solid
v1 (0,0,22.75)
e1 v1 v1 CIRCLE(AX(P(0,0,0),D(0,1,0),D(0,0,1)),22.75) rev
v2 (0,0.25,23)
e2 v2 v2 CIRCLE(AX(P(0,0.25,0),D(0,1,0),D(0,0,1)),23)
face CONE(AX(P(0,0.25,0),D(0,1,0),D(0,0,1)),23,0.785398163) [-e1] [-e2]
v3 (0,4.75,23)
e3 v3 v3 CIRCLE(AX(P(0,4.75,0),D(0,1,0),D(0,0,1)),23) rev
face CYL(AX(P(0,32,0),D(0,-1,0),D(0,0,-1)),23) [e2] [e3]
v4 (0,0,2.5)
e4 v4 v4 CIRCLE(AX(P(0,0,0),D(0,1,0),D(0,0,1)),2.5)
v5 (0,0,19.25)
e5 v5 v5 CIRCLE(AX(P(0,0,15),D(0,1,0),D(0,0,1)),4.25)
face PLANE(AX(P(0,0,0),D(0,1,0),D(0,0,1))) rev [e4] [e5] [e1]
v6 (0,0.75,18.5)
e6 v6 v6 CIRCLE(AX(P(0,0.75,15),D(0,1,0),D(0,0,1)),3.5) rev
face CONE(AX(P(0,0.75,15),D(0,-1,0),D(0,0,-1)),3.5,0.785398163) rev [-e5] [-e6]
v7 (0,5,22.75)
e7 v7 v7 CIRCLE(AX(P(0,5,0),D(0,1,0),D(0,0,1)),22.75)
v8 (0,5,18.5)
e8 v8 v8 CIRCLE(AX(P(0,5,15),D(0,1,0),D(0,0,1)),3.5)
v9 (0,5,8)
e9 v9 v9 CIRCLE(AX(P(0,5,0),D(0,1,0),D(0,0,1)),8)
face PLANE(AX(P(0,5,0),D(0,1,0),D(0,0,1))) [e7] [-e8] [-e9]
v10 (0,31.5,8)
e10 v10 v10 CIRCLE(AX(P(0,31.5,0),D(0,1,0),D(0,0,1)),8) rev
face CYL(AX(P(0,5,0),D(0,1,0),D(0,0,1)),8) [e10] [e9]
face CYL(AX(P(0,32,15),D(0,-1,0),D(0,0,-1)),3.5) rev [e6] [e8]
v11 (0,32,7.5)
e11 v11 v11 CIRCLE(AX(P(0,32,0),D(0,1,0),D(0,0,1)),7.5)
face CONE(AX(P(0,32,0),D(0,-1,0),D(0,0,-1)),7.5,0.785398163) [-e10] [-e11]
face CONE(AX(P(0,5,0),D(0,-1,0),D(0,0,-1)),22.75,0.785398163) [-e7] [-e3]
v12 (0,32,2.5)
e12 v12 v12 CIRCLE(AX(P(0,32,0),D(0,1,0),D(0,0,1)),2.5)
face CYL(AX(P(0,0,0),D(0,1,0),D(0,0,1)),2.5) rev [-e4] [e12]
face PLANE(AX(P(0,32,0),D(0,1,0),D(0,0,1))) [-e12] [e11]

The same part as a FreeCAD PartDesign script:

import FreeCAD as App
import Part
import Sketcher
Q = App.Units.Quantity


def edges_at(feature, points):
    """Names of the edges that pass closest to the given points."""
    edges = feature.Shape.Edges
    near = lambda p: min(range(len(edges)), key=lambda i: edges[i].distToShape(Part.Vertex(*p))[0])
    return sorted({f"Edge{near(p) + 1}" for p in points})


def add_polygon(sketch, points):
    """Adds a closed chain of lines whose ends are joined by coincident constraints."""
    first, n = sketch.GeometryCount, len(points)
    for a, b in zip(points, points[1:] + points[:1]):
        sketch.addGeometry(Part.LineSegment(App.Vector(*a, 0), App.Vector(*b, 0)), False)
    for i in range(n):
        sketch.addConstraint(Sketcher.Constraint("Coincident", first + i, 2, first + (i + 1) % n, 1))

doc = App.newDocument("Part")
params = doc.addObject("Spreadsheet::Sheet", "Params")
for row, (alias, value) in enumerate([
    ("sketch1_diameter", "46 mm"),
    ("pad1_length", "32 mm"),
    ("sketch2_diameter", "16 mm"),
    ("sketch2_width", "62.5 mm"),
    ("pocket1_length", "27 mm"),
    ("sketch3_diameter", "5 mm"),
    ("chamfer_size", "0.5 mm"),
    ("chamfer2_size", "0.25 mm"),
    ("sketch4_diameter", "7 mm"),
    ("chamfer3_size", "0.75 mm"),
], start=1):
    params.set(f"A{row}", alias)
    params.set(f"B{row}", "=" + value)
    params.setAlias(f"B{row}", alias)

body = doc.addObject("PartDesign::Body", "Body")

# Sketch on XZ plane
sketch1 = body.newObject("Sketcher::SketchObject", "Sketch")
sketch1.AttachmentSupport = (doc.getObject("XZ_Plane"), [""])
sketch1.MapMode = "FlatFace"
sketch1.addGeometry(Part.Circle(App.Vector(0, 0, 0), App.Vector(0, 0, 1), 23), False)
sketch1.addConstraint(Sketcher.Constraint("Coincident", 0, 3, -1, 1))
sketch1.addConstraint(Sketcher.Constraint("Diameter", 0, Q("46 mm")))
sketch1.setExpression("Constraints[1]", "Params.sketch1_diameter")
pad1 = body.newObject("PartDesign::Pad", "Pad")
pad1.Profile = sketch1
pad1.setExpression("Length", "Params.pad1_length")
pad1.Reversed = True

# Sketch on XZ plane
sketch2 = body.newObject("Sketcher::SketchObject", "Sketch001")
sketch2.AttachmentSupport = (doc.getObject("XZ_Plane"), [""])
sketch2.MapMode = "FlatFace"
sketch2.AttachmentOffset = App.Placement(App.Vector(0, 0, -32), App.Rotation())
add_polygon(sketch2, [(-31.25, -31.25), (-31.25, 31.25), (31.25, 31.25), (31.25, -31.25)])  # lines 0-3
sketch2.addGeometry(Part.Circle(App.Vector(0, 0, 0), App.Vector(0, 0, 1), 8), False)  # 4
sketch2.addConstraint(Sketcher.Constraint("Vertical", 0))
sketch2.addConstraint(Sketcher.Constraint("Horizontal", 1))
sketch2.addConstraint(Sketcher.Constraint("Vertical", 2))
sketch2.addConstraint(Sketcher.Constraint("Horizontal", 3))
sketch2.addConstraint(Sketcher.Constraint("Coincident", 4, 3, -1, 1))
sketch2.addConstraint(Sketcher.Constraint("Symmetric", 0, 2, 2, 2, -1, 1))
sketch2.addConstraint(Sketcher.Constraint("Equal", 3, 0))
sketch2.addConstraint(Sketcher.Constraint("Diameter", 4, Q("16 mm")))
sketch2.addConstraint(Sketcher.Constraint("DistanceX", 1, 1, 1, 2, Q("62.5 mm")))
sketch2.setExpression("Constraints[11]", "Params.sketch2_diameter")
sketch2.setExpression("Constraints[12]", "Params.sketch2_width")
pocket1 = body.newObject("PartDesign::Pocket", "Pocket")
pocket1.Profile = sketch2
pocket1.setExpression("Length", "Params.pocket1_length")
pocket1.Reversed = True

# Sketch on XZ plane
sketch3 = body.newObject("Sketcher::SketchObject", "Sketch002")
sketch3.AttachmentSupport = (doc.getObject("XZ_Plane"), [""])
sketch3.MapMode = "FlatFace"
sketch3.AttachmentOffset = App.Placement(App.Vector(0, 0, -32), App.Rotation())
sketch3.addGeometry(Part.Circle(App.Vector(0, 0, 0), App.Vector(0, 0, 1), 2.5), False)
sketch3.addConstraint(Sketcher.Constraint("Coincident", 0, 3, -1, 1))
sketch3.addConstraint(Sketcher.Constraint("Diameter", 0, Q("5 mm")))
sketch3.setExpression("Constraints[1]", "Params.sketch3_diameter")
pocket2 = body.newObject("PartDesign::Pocket", "Pocket001")
pocket2.Profile = sketch3
pocket2.Type = "ThroughAll"
pocket2.Reversed = True
doc.recompute()

chamfer = body.newObject("PartDesign::Chamfer", "Chamfer")
chamfer.Base = (pocket2, edges_at(pocket2, [(0, 32, -8)]))
chamfer.setExpression("Size", "Params.chamfer_size")
doc.recompute()

chamfer2 = body.newObject("PartDesign::Chamfer", "Chamfer001")
chamfer2.Base = (chamfer, edges_at(chamfer, [(0, 0, -23), (0, 5, -23)]))
chamfer2.setExpression("Size", "Params.chamfer2_size")

# Sketch on XZ plane
sketch4 = body.newObject("Sketcher::SketchObject", "Sketch003")
sketch4.AttachmentSupport = (doc.getObject("XZ_Plane"), [""])
sketch4.MapMode = "FlatFace"
sketch4.addGeometry(Part.Circle(App.Vector(0, 15, 0), App.Vector(0, 0, 1), 3.5), False)
sketch4.addConstraint(Sketcher.Constraint("PointOnObject", 0, 3, -2))
sketch4.addConstraint(Sketcher.Constraint("Diameter", 0, Q("7 mm")))
sketch4.addConstraint(Sketcher.Constraint("DistanceY", -1, 1, 0, 3, Q("15 mm")))
sketch4.setExpression("Constraints[1]", "Params.sketch4_diameter")
pocket3 = body.newObject("PartDesign::Pocket", "Pocket002")
pocket3.Profile = sketch4
pocket3.Type = "ThroughAll"
doc.recompute()

chamfer3 = body.newObject("PartDesign::Chamfer", "Chamfer002")
chamfer3.Base = (pocket3, edges_at(pocket3, [(0, 0, 18.5)]))
chamfer3.setExpression("Size", "Params.chamfer3_size")

doc.recompute()
